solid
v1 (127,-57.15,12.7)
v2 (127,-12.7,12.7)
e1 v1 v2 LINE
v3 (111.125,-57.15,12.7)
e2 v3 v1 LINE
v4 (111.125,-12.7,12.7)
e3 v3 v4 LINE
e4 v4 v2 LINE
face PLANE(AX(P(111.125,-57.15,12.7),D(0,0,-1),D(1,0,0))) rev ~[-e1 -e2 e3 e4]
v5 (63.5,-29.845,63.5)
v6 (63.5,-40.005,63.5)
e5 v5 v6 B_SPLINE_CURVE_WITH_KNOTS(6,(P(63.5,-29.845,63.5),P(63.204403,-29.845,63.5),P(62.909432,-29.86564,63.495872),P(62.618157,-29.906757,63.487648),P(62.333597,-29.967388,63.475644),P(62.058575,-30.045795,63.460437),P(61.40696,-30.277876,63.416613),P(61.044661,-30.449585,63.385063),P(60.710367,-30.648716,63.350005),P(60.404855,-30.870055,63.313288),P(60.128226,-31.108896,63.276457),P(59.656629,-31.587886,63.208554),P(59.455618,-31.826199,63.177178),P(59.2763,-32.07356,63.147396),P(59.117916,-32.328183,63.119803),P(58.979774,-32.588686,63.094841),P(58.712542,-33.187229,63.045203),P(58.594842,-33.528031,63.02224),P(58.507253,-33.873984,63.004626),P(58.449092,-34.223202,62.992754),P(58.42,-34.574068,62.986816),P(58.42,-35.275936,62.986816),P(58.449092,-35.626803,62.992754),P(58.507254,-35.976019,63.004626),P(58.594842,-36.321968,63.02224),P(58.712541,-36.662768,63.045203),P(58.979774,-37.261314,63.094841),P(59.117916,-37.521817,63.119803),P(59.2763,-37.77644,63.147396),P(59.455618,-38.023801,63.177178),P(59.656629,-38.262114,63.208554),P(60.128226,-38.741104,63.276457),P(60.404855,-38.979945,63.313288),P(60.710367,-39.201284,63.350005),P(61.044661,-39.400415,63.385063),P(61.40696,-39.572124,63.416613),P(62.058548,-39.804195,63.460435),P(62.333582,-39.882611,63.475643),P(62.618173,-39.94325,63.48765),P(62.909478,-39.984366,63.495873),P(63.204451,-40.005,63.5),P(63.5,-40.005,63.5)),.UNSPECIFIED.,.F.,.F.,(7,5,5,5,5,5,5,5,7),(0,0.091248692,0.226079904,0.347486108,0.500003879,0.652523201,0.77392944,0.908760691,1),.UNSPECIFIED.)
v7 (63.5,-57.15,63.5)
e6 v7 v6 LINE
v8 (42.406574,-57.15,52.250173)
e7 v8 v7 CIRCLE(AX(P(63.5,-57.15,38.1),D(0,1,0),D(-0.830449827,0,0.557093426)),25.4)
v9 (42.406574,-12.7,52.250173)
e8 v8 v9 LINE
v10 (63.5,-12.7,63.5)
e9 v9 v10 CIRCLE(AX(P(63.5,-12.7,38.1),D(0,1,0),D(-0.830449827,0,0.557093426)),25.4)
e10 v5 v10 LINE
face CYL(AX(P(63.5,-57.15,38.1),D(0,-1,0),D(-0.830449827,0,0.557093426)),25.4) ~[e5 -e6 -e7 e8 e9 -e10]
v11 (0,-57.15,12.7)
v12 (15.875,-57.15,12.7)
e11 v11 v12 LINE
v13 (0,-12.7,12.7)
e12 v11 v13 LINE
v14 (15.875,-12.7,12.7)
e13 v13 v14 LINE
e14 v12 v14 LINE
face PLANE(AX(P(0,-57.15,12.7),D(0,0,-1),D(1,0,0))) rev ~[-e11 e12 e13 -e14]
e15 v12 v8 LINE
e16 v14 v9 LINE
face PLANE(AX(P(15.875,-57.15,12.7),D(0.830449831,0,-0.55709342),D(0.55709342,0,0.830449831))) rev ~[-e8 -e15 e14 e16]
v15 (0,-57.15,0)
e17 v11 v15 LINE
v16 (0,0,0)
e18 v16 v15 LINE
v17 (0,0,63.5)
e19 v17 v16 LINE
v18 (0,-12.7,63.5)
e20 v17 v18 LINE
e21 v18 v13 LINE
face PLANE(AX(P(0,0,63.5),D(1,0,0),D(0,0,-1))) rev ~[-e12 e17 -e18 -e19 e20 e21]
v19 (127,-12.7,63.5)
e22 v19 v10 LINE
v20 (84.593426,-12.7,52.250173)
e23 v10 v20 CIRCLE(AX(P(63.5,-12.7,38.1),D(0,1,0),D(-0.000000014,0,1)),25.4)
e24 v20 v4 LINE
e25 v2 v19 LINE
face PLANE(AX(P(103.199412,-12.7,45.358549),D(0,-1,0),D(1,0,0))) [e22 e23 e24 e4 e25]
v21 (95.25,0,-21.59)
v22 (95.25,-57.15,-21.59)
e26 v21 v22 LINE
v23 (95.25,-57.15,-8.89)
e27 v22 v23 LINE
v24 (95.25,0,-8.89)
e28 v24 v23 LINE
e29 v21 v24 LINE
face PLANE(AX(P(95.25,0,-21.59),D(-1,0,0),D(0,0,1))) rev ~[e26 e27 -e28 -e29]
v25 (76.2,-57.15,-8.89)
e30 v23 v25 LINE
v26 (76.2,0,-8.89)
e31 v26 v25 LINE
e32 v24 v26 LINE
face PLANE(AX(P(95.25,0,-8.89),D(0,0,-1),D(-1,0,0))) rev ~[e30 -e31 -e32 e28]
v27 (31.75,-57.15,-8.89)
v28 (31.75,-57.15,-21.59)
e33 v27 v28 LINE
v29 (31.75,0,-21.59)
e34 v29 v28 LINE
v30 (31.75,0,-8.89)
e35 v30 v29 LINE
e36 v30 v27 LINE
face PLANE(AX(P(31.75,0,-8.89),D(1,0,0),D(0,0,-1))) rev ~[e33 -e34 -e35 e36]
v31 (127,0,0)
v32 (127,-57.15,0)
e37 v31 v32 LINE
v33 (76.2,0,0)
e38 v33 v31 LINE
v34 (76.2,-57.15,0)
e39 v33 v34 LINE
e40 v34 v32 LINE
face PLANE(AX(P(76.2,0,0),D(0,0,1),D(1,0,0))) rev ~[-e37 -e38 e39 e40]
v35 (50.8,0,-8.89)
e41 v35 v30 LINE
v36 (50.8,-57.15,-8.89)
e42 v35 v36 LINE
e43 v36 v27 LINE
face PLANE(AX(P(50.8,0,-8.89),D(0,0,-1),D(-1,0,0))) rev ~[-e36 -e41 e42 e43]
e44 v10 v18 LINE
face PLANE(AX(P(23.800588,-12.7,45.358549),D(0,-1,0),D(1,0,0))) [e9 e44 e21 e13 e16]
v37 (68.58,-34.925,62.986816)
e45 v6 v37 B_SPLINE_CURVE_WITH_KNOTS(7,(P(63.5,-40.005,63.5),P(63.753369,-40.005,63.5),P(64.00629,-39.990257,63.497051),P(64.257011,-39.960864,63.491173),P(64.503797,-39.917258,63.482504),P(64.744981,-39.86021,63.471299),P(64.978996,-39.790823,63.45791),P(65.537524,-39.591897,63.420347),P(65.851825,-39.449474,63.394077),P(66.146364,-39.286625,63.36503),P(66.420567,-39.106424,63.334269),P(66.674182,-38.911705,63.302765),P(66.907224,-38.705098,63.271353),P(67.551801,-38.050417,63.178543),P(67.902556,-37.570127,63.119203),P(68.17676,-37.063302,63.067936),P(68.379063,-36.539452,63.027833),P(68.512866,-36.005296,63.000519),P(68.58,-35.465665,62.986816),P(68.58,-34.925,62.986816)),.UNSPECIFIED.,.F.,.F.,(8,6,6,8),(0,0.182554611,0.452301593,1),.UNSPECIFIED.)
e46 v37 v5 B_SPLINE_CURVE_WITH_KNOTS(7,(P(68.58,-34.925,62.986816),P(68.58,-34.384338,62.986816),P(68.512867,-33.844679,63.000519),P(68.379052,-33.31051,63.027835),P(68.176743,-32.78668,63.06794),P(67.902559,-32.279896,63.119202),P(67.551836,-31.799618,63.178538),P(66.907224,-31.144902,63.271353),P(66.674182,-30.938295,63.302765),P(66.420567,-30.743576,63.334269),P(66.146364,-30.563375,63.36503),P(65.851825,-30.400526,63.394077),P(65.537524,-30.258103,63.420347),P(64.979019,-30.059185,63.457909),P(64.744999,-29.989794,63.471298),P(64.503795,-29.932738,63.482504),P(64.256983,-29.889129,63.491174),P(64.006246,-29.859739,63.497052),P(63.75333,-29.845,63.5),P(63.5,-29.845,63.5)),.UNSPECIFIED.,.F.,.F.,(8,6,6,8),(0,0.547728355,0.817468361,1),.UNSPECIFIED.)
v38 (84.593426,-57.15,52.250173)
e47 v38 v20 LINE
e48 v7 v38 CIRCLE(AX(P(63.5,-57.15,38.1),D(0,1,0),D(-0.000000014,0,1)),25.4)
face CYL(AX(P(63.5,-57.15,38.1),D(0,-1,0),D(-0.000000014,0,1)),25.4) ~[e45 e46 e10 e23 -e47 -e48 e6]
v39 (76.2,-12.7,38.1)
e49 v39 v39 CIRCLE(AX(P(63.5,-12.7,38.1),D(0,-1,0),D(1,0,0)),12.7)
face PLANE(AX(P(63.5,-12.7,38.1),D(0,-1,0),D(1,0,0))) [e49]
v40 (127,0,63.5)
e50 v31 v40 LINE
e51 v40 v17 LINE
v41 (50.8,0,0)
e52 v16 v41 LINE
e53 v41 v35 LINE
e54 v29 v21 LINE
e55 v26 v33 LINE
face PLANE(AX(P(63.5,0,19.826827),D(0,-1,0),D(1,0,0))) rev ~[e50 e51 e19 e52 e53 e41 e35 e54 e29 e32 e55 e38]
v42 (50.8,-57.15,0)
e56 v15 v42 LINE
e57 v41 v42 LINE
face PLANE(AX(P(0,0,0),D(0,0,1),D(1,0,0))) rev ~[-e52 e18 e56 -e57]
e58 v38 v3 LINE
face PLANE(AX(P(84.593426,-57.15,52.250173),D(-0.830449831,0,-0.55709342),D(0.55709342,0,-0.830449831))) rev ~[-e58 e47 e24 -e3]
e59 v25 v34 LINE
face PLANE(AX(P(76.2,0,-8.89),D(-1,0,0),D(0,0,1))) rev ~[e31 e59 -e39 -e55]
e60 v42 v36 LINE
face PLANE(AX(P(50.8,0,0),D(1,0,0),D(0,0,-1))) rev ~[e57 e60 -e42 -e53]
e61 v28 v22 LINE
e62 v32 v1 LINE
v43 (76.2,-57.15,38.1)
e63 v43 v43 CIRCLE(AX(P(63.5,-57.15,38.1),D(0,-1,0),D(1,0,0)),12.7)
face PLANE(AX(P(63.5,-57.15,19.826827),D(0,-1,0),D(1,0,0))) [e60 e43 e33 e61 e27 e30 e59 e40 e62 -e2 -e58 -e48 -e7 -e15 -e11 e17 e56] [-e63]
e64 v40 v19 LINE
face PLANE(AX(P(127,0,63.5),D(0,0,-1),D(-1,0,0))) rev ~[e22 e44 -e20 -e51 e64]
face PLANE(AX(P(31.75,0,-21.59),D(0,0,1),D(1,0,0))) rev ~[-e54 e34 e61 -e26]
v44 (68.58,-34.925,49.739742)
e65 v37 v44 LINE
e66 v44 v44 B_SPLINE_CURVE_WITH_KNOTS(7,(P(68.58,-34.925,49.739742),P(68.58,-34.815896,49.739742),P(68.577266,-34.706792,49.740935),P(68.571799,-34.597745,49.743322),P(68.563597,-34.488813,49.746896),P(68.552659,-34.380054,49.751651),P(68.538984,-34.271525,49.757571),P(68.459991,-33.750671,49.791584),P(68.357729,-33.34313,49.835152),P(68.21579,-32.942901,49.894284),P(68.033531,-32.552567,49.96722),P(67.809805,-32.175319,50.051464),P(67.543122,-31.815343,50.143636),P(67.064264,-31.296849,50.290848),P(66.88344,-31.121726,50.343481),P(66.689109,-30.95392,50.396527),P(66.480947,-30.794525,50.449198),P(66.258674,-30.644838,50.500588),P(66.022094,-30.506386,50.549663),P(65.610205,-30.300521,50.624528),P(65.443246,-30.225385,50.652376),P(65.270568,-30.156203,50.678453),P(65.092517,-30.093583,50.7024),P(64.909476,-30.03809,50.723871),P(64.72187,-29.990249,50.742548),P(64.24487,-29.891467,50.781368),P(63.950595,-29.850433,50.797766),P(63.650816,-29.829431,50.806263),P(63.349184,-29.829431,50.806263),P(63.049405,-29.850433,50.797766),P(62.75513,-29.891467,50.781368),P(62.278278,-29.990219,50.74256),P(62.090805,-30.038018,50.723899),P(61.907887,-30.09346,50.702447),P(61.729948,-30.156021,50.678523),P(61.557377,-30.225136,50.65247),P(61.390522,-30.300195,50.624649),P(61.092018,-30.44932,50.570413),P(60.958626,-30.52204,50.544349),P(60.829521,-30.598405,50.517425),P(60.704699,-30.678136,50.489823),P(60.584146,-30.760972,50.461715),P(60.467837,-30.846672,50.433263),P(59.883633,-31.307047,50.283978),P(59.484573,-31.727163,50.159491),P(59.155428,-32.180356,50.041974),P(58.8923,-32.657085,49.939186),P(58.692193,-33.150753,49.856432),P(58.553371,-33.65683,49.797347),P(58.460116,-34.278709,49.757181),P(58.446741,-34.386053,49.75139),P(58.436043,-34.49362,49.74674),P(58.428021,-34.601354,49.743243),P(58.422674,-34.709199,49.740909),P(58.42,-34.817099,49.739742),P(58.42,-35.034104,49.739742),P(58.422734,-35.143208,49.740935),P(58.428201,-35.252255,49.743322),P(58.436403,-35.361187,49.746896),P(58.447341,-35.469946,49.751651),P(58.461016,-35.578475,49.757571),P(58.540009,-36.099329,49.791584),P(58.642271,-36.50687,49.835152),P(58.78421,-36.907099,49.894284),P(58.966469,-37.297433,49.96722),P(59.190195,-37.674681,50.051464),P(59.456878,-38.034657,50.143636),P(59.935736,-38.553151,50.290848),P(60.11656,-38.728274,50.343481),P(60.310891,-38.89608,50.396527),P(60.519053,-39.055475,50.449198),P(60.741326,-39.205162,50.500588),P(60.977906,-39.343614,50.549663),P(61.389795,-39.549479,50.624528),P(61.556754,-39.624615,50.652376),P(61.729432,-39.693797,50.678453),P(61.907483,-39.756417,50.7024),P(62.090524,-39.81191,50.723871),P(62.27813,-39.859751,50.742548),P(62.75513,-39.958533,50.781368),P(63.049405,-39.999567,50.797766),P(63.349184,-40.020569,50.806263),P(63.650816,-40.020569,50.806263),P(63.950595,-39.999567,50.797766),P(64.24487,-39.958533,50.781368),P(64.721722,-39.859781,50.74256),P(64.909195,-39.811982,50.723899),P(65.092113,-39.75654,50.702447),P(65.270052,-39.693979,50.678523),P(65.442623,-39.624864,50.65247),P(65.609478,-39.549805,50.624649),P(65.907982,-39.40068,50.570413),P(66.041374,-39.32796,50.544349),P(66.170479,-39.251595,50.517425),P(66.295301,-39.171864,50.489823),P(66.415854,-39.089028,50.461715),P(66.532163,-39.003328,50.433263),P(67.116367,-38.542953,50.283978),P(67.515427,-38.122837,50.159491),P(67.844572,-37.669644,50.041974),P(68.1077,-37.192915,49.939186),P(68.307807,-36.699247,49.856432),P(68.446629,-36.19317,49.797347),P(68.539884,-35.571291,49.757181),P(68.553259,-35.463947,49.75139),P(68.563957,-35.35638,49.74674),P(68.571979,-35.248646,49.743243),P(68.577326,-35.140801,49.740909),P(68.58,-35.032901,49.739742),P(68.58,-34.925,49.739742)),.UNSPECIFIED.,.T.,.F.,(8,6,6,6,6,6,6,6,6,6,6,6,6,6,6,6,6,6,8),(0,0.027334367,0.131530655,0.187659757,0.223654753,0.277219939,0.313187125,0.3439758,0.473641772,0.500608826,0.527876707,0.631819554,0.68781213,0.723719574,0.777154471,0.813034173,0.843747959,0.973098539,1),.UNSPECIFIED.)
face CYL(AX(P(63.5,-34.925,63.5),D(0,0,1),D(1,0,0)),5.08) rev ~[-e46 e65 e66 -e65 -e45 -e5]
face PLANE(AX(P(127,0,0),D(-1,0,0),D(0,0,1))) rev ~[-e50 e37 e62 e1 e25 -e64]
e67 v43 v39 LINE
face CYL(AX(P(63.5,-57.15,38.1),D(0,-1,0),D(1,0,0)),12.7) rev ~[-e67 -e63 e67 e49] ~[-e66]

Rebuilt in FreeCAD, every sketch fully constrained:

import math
import FreeCAD as App
import Part
import Sketcher
from FreeCAD import Vector
Q = App.Units.Quantity


def add_polygon(sketch, points):
    """Adds a closed chain of lines whose ends are joined by coincident constraints."""
    first, n = sketch.GeometryCount, len(points)
    for a, b in zip(points, points[1:] + points[:1]):
        sketch.addGeometry(Part.LineSegment(App.Vector(*a, 0), App.Vector(*b, 0)), False)
    for i in range(n):
        sketch.addConstraint(Sketcher.Constraint("Coincident", first + i, 2, first + (i + 1) % n, 1))

doc = App.newDocument("Part")
body = doc.addObject("PartDesign::Body", "Body")

sketch1 = body.newObject("Sketcher::SketchObject", "Sketch")
sketch1.AttachmentSupport = (doc.getObject("XZ_Plane"), [""])
sketch1.MapMode = "FlatFace"
add_polygon(sketch1, [(0, 64), (0, 0), (51, 0), (51, -9), (32, -9), (32, -22), (95, -22), (95, -9), (76, -9), (76, 0), (127, 0), (127, 64)])
sketch1.addConstraint([
    Sketcher.Constraint("Vertical", 0),
    Sketcher.Constraint("Horizontal", 1),
    Sketcher.Constraint("Vertical", 2),
    Sketcher.Constraint("Horizontal", 3),
    Sketcher.Constraint("Vertical", 4),
    Sketcher.Constraint("Horizontal", 5),
    Sketcher.Constraint("Vertical", 6),
    Sketcher.Constraint("Horizontal", 7),
    Sketcher.Constraint("Vertical", 8),
    Sketcher.Constraint("Horizontal", 9),
    Sketcher.Constraint("Vertical", 10),
    Sketcher.Constraint("Horizontal", 11),
    Sketcher.Constraint("Coincident", 0, 2, -1, 1),
    Sketcher.Constraint("PointOnObject", 8, 2, -1),
    Sketcher.Constraint("Horizontal", 3, 2, 6, 2),
    Sketcher.Constraint("Equal", 3, 7),
    Sketcher.Constraint("Equal", 1, 9),
    Sketcher.Constraint("Equal", 5, 0),
    Sketcher.Constraint("DistanceX", 1, 1, 1, 2, Q("2 in")),
    Sketcher.Constraint("DistanceX", 11, 2, 11, 1, Q("5 in")),
    Sketcher.Constraint("DistanceX", 5, 1, 5, 2, Q("2.5 in")),
    Sketcher.Constraint("DistanceY", 4, 2, 4, 1, Q("0.5 in")),
    Sketcher.Constraint("DistanceY", 2, 2, 2, 1, Q("0.35 in")),
])
pad1 = body.newObject("PartDesign::Pad", "Pad")
pad1.Profile = sketch1
pad1.Length = Q("2.25 in")

sketch2 = body.newObject("Sketcher::SketchObject", "Sketch001")
sketch2.AttachmentSupport = (doc.getObject("XZ_Plane"), [""])
sketch2.MapMode = "FlatFace"
sketch2.AttachmentOffset = App.Placement(Vector(0, 0, 2.25 * 25.4), App.Rotation())
sketch2.addGeometry(Part.Circle(Vector(64, 38, 0), Vector(0, 0, 1), 13), False)
sketch2.addConstraint([
    Sketcher.Constraint("Diameter", 0, Q("1 in")),
    Sketcher.Constraint("DistanceX", -1, 1, 0, 3, Q("2.5 in")),
    Sketcher.Constraint("DistanceY", -1, 1, 0, 3, Q("1.5 in")),
])
pocket1 = body.newObject("PartDesign::Pocket", "Pocket")
pocket1.Profile = sketch2
pocket1.Length = Q("1.75 in")

sketch3 = body.newObject("Sketcher::SketchObject", "Sketch002")
sketch3.AttachmentSupport = (doc.getObject("XZ_Plane"), [""])
sketch3.MapMode = "FlatFace"
sketch3.AttachmentOffset = App.Placement(Vector(0, 0, 2.25 * 25.4), App.Rotation())
sketch3.addGeometry([
    Part.LineSegment(Vector(0, 64, 0), Vector(0, 13, 0)),
    Part.LineSegment(Vector(0, 13, 0), Vector(16, 13, 0)),
    Part.LineSegment(Vector(16, 13, 0), Vector(42, 52, 0)),
    Part.ArcOfCircle(Part.Circle(Vector(63, 38, 0), Vector(0, 0, 1), 25), math.radians(90), math.radians(146)),
    Part.LineSegment(Vector(64, 64, 0), Vector(0, 64, 0)),
    Part.LineSegment(Vector(127, 64, 0), Vector(64, 64, 0)),
    Part.ArcOfCircle(Part.Circle(Vector(64, 38, 0), Vector(0, 0, 1), 25), math.radians(34), math.radians(90)),
    Part.LineSegment(Vector(85, 52, 0), Vector(111, 13, 0)),
    Part.LineSegment(Vector(111, 13, 0), Vector(127, 13, 0)),
    Part.LineSegment(Vector(127, 13, 0), Vector(127, 64, 0)),
], False)
sketch3.addConstraint([
    Sketcher.Constraint("Coincident", 0, 2, 1, 1),
    Sketcher.Constraint("Coincident", 1, 2, 2, 1),
    Sketcher.Constraint("Tangent", 2, 2, 3, 2),
    Sketcher.Constraint("Tangent", 3, 1, 4, 1),
    Sketcher.Constraint("Coincident", 4, 2, 0, 1),
    Sketcher.Constraint("Tangent", 5, 2, 6, 2),
    Sketcher.Constraint("Tangent", 6, 1, 7, 1),
    Sketcher.Constraint("Coincident", 7, 2, 8, 1),
    Sketcher.Constraint("Coincident", 8, 2, 9, 1),
    Sketcher.Constraint("Coincident", 9, 2, 5, 1),
    Sketcher.Constraint("Vertical", 0),
    Sketcher.Constraint("Horizontal", 1),
    Sketcher.Constraint("Horizontal", 4),
    Sketcher.Constraint("Horizontal", 5),
    Sketcher.Constraint("Horizontal", 8),
    Sketcher.Constraint("Vertical", 9),
    Sketcher.Constraint("Coincident", 6, 3, 3, 3),
    Sketcher.Constraint("Equal", 3, 6),
    Sketcher.Constraint("PointOnObject", 0, 2, -2),
    Sketcher.Constraint("Horizontal", 2, 2, 6, 1),
    Sketcher.Constraint("Horizontal", 1, 2, 7, 2),
    Sketcher.Constraint("Equal", 4, 5),
    Sketcher.Constraint("Radius", 3, Q("1 in")),
    Sketcher.Constraint("DistanceY", 0, 2, 0, 1, Q("2 in")),
    Sketcher.Constraint("DistanceX", 4, 2, 4, 1, Q("2.5 in")),
    Sketcher.Constraint("DistanceY", -1, 1, 3, 3, Q("1.5 in")),
    Sketcher.Constraint("DistanceX", 1, 1, 1, 2, Q("0.625 in")),
])
pocket2 = body.newObject("PartDesign::Pocket", "Pocket001")
pocket2.Profile = sketch3
pocket2.Length = Q("1.75 in")

sketch4 = body.newObject("Sketcher::SketchObject", "Sketch003")
sketch4.AttachmentSupport = (doc.getObject("XY_Plane"), [""])
sketch4.MapMode = "FlatFace"
sketch4.AttachmentOffset = App.Placement(Vector(0, 0, 2.5 * 25.4), App.Rotation())
sketch4.addGeometry(Part.Circle(Vector(64, -35, 0), Vector(0, 0, 1), 5), False)
sketch4.addConstraint([
    Sketcher.Constraint("Diameter", 0, Q("0.4 in")),
    Sketcher.Constraint("DistanceX", -1, 1, 0, 3, Q("2.5 in")),
    Sketcher.Constraint("DistanceY", 0, 3, -1, 1, Q("1.375 in")),
])
pocket3 = body.newObject("PartDesign::Pocket", "Pocket002")
pocket3.Profile = sketch4
pocket3.Length = Q("1 in")

doc.recompute()
